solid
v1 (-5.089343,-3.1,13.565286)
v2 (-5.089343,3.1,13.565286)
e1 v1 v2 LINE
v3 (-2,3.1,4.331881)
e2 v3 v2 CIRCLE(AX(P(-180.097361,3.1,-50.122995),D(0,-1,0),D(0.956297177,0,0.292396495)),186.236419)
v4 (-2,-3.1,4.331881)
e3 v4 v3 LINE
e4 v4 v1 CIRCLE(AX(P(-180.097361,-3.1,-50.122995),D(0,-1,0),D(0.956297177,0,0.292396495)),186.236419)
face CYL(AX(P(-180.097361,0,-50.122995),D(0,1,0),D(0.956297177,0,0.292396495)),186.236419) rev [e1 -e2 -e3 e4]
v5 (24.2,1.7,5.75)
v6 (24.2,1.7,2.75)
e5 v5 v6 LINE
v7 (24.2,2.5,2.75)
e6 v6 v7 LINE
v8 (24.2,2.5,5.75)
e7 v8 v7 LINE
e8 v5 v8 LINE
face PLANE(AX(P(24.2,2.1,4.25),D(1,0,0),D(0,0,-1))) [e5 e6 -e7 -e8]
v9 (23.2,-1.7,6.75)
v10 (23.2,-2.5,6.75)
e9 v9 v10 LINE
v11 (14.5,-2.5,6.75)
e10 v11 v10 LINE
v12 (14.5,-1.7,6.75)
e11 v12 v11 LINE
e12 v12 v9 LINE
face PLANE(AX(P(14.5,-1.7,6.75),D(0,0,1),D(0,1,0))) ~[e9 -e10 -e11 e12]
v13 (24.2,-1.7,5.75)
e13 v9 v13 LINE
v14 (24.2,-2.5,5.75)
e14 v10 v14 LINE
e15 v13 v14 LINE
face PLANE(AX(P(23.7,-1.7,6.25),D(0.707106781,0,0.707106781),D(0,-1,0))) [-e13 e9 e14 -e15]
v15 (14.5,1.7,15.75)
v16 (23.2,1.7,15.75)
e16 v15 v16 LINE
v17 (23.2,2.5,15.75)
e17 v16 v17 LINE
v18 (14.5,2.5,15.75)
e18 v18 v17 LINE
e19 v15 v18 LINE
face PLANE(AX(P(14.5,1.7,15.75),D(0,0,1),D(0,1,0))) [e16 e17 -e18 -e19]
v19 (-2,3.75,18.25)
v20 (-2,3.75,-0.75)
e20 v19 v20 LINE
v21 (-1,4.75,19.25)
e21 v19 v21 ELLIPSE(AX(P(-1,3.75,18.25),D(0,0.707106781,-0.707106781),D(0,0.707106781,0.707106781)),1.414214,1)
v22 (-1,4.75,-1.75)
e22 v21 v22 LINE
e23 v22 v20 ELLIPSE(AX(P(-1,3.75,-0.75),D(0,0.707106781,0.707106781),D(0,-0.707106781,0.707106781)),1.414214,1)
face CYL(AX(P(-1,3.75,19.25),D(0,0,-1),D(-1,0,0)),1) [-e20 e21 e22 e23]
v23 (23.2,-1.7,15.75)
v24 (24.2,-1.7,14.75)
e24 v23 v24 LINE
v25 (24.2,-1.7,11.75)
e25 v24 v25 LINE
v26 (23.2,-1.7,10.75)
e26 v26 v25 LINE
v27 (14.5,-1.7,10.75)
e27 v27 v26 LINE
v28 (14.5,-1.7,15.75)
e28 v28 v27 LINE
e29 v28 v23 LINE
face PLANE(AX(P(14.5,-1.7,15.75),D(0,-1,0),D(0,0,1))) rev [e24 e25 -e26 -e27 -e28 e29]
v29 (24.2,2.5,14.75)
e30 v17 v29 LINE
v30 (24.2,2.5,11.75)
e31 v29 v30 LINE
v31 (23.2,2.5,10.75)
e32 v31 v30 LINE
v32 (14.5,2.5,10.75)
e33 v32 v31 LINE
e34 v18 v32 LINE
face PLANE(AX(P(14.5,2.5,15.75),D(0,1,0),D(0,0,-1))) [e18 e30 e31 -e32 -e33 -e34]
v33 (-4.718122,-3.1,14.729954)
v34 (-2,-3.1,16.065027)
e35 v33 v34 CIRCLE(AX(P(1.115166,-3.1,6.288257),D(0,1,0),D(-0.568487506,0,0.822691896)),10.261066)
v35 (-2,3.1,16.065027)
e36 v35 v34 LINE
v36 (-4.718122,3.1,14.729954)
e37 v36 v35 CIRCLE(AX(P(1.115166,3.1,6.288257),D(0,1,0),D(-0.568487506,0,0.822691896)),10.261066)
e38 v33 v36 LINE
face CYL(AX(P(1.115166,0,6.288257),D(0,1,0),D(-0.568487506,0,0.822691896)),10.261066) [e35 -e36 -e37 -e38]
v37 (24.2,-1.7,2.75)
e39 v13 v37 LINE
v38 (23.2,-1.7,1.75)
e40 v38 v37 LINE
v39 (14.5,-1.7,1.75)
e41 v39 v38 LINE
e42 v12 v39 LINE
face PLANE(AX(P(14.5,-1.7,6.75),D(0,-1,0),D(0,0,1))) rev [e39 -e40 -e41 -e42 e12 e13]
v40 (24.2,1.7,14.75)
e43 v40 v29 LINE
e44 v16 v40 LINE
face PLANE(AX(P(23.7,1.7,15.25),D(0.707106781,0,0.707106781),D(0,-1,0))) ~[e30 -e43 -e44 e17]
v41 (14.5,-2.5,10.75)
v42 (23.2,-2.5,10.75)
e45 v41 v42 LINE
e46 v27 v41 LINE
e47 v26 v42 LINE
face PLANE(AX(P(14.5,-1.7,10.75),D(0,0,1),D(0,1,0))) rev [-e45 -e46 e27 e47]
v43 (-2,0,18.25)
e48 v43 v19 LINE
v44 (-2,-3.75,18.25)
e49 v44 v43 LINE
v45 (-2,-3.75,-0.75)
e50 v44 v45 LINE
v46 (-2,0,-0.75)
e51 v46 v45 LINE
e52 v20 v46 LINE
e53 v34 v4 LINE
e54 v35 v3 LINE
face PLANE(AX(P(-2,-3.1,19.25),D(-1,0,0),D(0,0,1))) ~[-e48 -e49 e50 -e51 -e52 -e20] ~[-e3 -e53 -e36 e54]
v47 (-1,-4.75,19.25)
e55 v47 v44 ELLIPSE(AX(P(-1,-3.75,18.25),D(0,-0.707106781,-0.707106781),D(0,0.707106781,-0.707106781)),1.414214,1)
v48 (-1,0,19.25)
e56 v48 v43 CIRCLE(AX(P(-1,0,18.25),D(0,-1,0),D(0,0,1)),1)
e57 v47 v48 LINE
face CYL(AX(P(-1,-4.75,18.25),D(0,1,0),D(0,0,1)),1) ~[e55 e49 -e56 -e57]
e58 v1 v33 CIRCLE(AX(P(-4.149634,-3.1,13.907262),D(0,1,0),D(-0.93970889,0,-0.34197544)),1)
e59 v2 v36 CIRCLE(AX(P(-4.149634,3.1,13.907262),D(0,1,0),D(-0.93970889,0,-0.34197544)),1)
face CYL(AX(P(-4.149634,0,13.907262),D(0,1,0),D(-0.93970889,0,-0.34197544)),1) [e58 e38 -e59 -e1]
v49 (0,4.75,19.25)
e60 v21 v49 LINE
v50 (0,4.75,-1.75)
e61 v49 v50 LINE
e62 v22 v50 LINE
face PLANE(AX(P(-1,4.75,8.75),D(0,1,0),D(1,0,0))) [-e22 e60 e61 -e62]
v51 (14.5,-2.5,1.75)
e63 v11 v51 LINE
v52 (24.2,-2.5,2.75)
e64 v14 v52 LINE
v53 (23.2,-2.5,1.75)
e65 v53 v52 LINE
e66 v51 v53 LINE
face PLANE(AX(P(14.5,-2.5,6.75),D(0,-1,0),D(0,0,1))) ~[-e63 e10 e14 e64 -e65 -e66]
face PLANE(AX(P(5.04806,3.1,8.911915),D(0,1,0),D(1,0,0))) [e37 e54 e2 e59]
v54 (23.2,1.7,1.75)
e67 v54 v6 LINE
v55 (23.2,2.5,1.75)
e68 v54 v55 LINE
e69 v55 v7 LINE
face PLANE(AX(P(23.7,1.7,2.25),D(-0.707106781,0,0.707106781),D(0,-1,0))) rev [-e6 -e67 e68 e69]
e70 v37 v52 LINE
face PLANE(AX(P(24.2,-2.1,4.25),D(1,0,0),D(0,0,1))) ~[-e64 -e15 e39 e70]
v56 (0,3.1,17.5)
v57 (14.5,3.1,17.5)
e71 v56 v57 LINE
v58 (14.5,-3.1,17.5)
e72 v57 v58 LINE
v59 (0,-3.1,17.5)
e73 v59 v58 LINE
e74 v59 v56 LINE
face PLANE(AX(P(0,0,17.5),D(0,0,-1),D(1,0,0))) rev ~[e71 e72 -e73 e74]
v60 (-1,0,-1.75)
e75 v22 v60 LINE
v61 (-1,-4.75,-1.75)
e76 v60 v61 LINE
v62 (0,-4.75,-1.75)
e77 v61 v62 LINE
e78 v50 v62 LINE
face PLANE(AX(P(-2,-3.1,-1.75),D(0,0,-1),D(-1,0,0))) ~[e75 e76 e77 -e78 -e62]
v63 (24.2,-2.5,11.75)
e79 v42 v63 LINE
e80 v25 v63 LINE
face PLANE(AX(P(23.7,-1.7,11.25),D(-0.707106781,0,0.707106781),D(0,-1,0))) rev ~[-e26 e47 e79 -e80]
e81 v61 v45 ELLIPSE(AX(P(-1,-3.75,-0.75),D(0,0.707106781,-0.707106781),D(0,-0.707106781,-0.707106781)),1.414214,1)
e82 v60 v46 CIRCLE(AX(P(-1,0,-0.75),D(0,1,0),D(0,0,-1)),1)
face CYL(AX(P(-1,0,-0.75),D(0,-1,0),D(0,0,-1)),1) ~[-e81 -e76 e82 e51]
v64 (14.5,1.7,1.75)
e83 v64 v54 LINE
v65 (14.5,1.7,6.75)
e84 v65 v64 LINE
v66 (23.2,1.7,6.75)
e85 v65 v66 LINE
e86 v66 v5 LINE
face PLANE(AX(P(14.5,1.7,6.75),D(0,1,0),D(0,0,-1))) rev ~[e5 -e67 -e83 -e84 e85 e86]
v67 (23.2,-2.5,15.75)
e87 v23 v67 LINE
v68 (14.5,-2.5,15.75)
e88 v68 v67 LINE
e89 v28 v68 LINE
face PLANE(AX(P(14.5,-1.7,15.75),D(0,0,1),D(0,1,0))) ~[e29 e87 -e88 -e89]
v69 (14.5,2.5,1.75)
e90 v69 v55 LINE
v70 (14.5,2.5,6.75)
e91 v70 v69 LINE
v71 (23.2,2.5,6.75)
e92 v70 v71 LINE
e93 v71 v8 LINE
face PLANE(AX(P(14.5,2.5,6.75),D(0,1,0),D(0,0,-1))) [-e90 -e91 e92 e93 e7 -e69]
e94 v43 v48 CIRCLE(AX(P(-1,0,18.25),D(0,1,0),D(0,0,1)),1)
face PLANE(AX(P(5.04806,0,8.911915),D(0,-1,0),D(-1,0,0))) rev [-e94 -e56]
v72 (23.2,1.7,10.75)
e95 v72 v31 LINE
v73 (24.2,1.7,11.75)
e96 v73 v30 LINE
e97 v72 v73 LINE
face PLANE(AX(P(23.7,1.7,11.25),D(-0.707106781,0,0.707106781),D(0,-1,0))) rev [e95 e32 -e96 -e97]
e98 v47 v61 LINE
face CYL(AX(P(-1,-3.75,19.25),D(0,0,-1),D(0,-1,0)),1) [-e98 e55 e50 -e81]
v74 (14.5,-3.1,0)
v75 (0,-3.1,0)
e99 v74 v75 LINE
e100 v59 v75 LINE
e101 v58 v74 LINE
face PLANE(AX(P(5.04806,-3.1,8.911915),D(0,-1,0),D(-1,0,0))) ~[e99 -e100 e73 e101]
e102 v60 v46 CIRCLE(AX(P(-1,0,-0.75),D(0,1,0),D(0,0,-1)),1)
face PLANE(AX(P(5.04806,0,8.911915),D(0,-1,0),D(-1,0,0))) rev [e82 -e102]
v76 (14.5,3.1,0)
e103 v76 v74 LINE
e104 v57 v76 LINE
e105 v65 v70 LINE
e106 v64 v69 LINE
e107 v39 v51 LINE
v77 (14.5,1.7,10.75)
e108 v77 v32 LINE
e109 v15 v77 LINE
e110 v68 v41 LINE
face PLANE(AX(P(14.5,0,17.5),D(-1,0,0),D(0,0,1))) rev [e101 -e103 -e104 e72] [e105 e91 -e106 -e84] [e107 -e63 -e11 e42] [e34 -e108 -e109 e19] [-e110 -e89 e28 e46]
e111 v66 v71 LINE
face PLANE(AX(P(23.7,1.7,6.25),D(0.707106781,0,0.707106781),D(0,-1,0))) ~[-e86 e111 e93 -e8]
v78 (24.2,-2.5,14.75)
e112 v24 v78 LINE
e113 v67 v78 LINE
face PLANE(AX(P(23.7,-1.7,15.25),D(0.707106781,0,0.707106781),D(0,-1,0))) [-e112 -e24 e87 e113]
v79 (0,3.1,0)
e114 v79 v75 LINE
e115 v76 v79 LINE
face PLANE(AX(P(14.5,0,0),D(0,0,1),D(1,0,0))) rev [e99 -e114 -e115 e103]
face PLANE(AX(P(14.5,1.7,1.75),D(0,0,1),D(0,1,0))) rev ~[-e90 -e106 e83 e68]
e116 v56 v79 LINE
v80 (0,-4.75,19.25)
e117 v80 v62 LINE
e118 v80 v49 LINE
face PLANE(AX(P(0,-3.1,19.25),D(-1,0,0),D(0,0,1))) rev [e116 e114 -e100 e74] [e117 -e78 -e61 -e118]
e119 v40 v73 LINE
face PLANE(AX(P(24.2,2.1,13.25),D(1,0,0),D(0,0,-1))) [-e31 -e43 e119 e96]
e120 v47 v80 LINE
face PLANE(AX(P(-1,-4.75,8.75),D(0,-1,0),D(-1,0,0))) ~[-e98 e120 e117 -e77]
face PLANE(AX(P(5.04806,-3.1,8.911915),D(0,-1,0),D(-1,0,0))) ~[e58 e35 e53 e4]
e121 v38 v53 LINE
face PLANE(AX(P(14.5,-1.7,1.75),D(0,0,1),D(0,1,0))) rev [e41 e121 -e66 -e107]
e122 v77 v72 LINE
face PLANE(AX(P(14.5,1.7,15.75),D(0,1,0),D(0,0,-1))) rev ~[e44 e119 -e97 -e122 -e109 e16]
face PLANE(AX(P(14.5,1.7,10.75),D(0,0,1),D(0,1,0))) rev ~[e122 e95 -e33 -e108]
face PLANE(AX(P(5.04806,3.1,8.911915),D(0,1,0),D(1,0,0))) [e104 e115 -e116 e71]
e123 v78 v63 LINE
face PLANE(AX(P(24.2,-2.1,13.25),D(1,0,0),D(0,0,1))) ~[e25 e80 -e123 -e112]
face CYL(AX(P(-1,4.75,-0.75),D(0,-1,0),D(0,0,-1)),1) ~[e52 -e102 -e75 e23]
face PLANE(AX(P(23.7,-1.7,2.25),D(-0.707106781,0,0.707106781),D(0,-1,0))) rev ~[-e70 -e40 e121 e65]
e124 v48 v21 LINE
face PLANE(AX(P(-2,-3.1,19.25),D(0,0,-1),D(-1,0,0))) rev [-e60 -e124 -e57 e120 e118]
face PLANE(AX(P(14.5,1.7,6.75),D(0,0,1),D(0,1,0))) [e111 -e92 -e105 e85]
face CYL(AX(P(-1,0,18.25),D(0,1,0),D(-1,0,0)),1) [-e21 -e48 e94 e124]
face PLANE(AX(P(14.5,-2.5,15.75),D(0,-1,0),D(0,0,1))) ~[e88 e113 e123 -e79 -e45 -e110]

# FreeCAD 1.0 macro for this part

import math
import FreeCAD as App
import Part
import Sketcher
Q = App.Units.Quantity


def edges_at(feature, points):
    """Names of the edges that pass closest to the given points."""
    edges = feature.Shape.Edges
    near = lambda p: min(range(len(edges)), key=lambda i: edges[i].distToShape(Part.Vertex(*p))[0])
    return sorted({f"Edge{near(p) + 1}" for p in points})


def add_polygon(sketch, points):
    """Adds a closed chain of lines whose ends are joined by coincident constraints."""
    first, n = sketch.GeometryCount, len(points)
    for a, b in zip(points, points[1:] + points[:1]):
        sketch.addGeometry(Part.LineSegment(App.Vector(*a, 0), App.Vector(*b, 0)), False)
    for i in range(n):
        sketch.addConstraint(Sketcher.Constraint("Coincident", first + i, 2, first + (i + 1) % n, 1))

doc = App.newDocument("Part")
body = doc.addObject("PartDesign::Body", "Body")

# Sketch on XZ plane
sketch1 = doc.addObject("Sketcher::SketchObject", "Sketch")
body.addObject(sketch1)
sketch1.AttachmentSupport = (doc.XZ_Plane, [""])
sketch1.MapMode = "FlatFace"
sketch1.addGeometry([
    Part.LineSegment(App.Vector(0, 0, 0), App.Vector(0, -1.8, 0)),  # 0
    Part.LineSegment(App.Vector(0, -1.8, 0), App.Vector(-2, -1.8, 0)),  # 1
    Part.LineSegment(App.Vector(-2, -1.8, 0), App.Vector(-2, 4.3, 0)),  # 2
    Part.ArcOfCircle(Part.Circle(App.Vector(-180.1, -50.1, 0), App.Vector(0, 0, 1), 186.2), math.radians(17), math.radians(20)),  # 3
    Part.ArcOfCircle(Part.Circle(App.Vector(-4.1, 13.9, 0), App.Vector(0, 0, 1), 1), math.radians(125), math.radians(200)),  # 4
    Part.ArcOfCircle(Part.Circle(App.Vector(1.1, 6.3, 0), App.Vector(0, 0, 1), 10.3), math.radians(107.67), math.radians(124.64)),  # 5
    Part.LineSegment(App.Vector(-2, 16.1, 0), App.Vector(-2, 19.2, 0)),  # 6
    Part.LineSegment(App.Vector(-2, 19.2, 0), App.Vector(0, 19.2, 0)),  # 7
    Part.LineSegment(App.Vector(0, 19.2, 0), App.Vector(0, 17.5, 0)),  # 8
    Part.LineSegment(App.Vector(0, 17.5, 0), App.Vector(14.5, 17.5, 0)),  # 9
    Part.LineSegment(App.Vector(14.5, 17.5, 0), App.Vector(14.5, 0, 0)),  # 10
    Part.LineSegment(App.Vector(14.5, 0, 0), App.Vector(0, 0, 0)),  # 11
], False)
sketch1.addConstraint([
    Sketcher.Constraint("Coincident", 0, 2, 1, 1),
    Sketcher.Constraint("Coincident", 1, 2, 2, 1),
    Sketcher.Constraint("Coincident", 2, 2, 3, 1),
    Sketcher.Constraint("Tangent", 3, 2, 4, 2),
    Sketcher.Constraint("Tangent", 4, 1, 5, 2),
    Sketcher.Constraint("Coincident", 5, 1, 6, 1),
    Sketcher.Constraint("Coincident", 6, 2, 7, 1),
    Sketcher.Constraint("Coincident", 7, 2, 8, 1),
    Sketcher.Constraint("Coincident", 8, 2, 9, 1),
    Sketcher.Constraint("Coincident", 9, 2, 10, 1),
    Sketcher.Constraint("Coincident", 10, 2, 11, 1),
    Sketcher.Constraint("Coincident", 11, 2, 0, 1),
    Sketcher.Constraint("Vertical", 0),
    Sketcher.Constraint("Horizontal", 1),
    Sketcher.Constraint("Vertical", 2),
    Sketcher.Constraint("Vertical", 6),
    Sketcher.Constraint("Horizontal", 7),
    Sketcher.Constraint("Vertical", 8),
    Sketcher.Constraint("Horizontal", 9),
    Sketcher.Constraint("Vertical", 10),
    Sketcher.Constraint("Horizontal", 11),
    Sketcher.Constraint("Coincident", 11, 2, -1, 1),
    Sketcher.Constraint("PointOnObject", 7, 2, -2),
    Sketcher.Constraint("Vertical", 2, 2, 5, 1),
    Sketcher.Constraint("Equal", 0, 8),
    Sketcher.Constraint("Radius", 4, Q("1 mm")),
    Sketcher.Constraint("DistanceX", 1, 2, 1, 1, Q("2 mm")),
    Sketcher.Constraint("DistanceX", 9, 1, 9, 2, Q("14.5 mm")),
    Sketcher.Constraint("DistanceY", 10, 2, 10, 1, Q("17.5 mm")),
    Sketcher.Constraint("DistanceY", 0, 2, 0, 1, Q("1.75 mm")),
    Sketcher.Constraint("Radius", 3, Q("186.236419 mm")),
    Sketcher.Constraint("Radius", 5, Q("10.261066 mm")),
    Sketcher.Constraint("DistanceY", 2, 1, 2, 2, Q("6.081881 mm")),
    Sketcher.Constraint("DistanceX", 4, 3, 5, 3, Q("5.264801 mm")),
    Sketcher.Constraint("DistanceY", 6, 1, 6, 2, Q("3.184973 mm")),
    Sketcher.Constraint("DistanceX", 3, 3, -1, 1, Q("180.097361 mm")),
])
pad1 = doc.addObject("PartDesign::Pad", "Pad")
body.addObject(pad1)
pad1.Profile = sketch1
pad1.Length = 3.1
pad1.Reversed = True

# Sketch on XZ plane
sketch2 = doc.addObject("Sketcher::SketchObject", "Sketch001")
body.addObject(sketch2)
sketch2.AttachmentSupport = (doc.XZ_Plane, [""])
sketch2.MapMode = "FlatFace"
sketch2.AttachmentOffset = App.Placement(App.Vector(0, 0, -3.1), App.Rotation())
add_polygon(sketch2, [(-2, -1.8), (-2, 19.2), (0, 19.2), (0, -1.8)])  # lines 0-3
sketch2.addConstraint([
    Sketcher.Constraint("Vertical", 0),
    Sketcher.Constraint("Horizontal", 1),
    Sketcher.Constraint("Vertical", 2),
    Sketcher.Constraint("Horizontal", 3),
    Sketcher.Constraint("PointOnObject", 1, 2, -2),
    Sketcher.Constraint("DistanceX", 1, 1, 1, 2, Q("2 mm")),
    Sketcher.Constraint("DistanceY", 0, 1, 0, 2, Q("21 mm")),
    Sketcher.Constraint("DistanceY", -1, 1, 0, 2, Q("19.25 mm")),
])
pad2 = doc.addObject("PartDesign::Pad", "Pad001")
body.addObject(pad2)
pad2.Profile = sketch2
pad2.Length = 1.65
pad2.Reversed = True

# Sketch on YZ plane
sketch3 = doc.addObject("Sketcher::SketchObject", "Sketch002")
body.addObject(sketch3)
sketch3.AttachmentSupport = (doc.YZ_Plane, [""])
sketch3.MapMode = "FlatFace"
sketch3.AttachmentOffset = App.Placement(App.Vector(0, 0, 14.5), App.Rotation())
add_polygon(sketch3, [(2.5, 15.8), (1.7, 15.8), (1.7, 10.8), (2.5, 10.8)])  # lines 0-3
add_polygon(sketch3, [(2.5, 6.8), (1.7, 6.8), (1.7, 1.8), (2.5, 1.8)])  # lines 4-7
sketch3.addConstraint([
    Sketcher.Constraint("Horizontal", 0),
    Sketcher.Constraint("Vertical", 1),
    Sketcher.Constraint("Horizontal", 2),
    Sketcher.Constraint("Vertical", 3),
    Sketcher.Constraint("Horizontal", 4),
    Sketcher.Constraint("Vertical", 5),
    Sketcher.Constraint("Horizontal", 6),
    Sketcher.Constraint("Vertical", 7),
    Sketcher.Constraint("Vertical", 1, 2, 4, 2),
    Sketcher.Constraint("Vertical", 3, 2, 6, 2),
    Sketcher.Constraint("Equal", 3, 5),
    Sketcher.Constraint("DistanceY", 1, 2, 1, 1, Q("5 mm")),
    Sketcher.Constraint("DistanceX", 0, 2, 0, 1, Q("0.8 mm")),
    Sketcher.Constraint("DistanceY", 4, 2, 1, 2, Q("4 mm")),
    Sketcher.Constraint("DistanceX", -1, 1, 0, 2, Q("1.7 mm")),
    Sketcher.Constraint("DistanceY", -1, 1, 0, 2, Q("15.75 mm")),
])
pad3 = doc.addObject("PartDesign::Pad", "Pad002")
body.addObject(pad3)
pad3.Profile = sketch3
pad3.Length = 9.7
doc.recompute()

chamfer = doc.addObject("PartDesign::Chamfer", "Chamfer")
body.addObject(chamfer)
chamfer.Base = (pad3, edges_at(pad3, [
    (24.2, 2.1, 15.75),
    (24.2, 2.1, 10.75),
    (24.2, 2.1, 6.75),
    (24.2, 2.1, 1.75),
]))
chamfer.Size = 1
doc.recompute()

fillet = doc.addObject("PartDesign::Fillet", "Fillet")
body.addObject(fillet)
fillet.Base = (chamfer, edges_at(chamfer, [(-2, 2.375, 19.25), (-2, 2.375, -1.75), (-2, 4.75, 8.75)]))
fillet.Radius = 1
doc.recompute()

mirrored = doc.addObject("PartDesign::Mirrored", "Mirrored")
body.addObject(mirrored)
mirrored.Originals = [pad1, pad2, pad3]
mirrored.MirrorPlane = (doc.XZ_Plane, [""])
body.Tip = mirrored
doc.recompute()

chamfer2 = doc.addObject("PartDesign::Chamfer", "Chamfer001")
body.addObject(chamfer2)
chamfer2.Base = (mirrored, edges_at(mirrored, [
    (24.2, -2.1, 15.75),
    (24.2, -2.1, 10.75),
    (24.2, -2.1, 6.75),
    (24.2, -2.1, 1.75),
]))
chamfer2.Size = 1
doc.recompute()

fillet2 = doc.addObject("PartDesign::Fillet", "Fillet001")
body.addObject(fillet2)
fillet2.Base = (chamfer2, edges_at(chamfer2, [(-2, -2.375, 19.25), (-2, -2.375, -1.75), (-2, -4.75, 8.75)]))
fillet2.Radius = 1

doc.recompute()
